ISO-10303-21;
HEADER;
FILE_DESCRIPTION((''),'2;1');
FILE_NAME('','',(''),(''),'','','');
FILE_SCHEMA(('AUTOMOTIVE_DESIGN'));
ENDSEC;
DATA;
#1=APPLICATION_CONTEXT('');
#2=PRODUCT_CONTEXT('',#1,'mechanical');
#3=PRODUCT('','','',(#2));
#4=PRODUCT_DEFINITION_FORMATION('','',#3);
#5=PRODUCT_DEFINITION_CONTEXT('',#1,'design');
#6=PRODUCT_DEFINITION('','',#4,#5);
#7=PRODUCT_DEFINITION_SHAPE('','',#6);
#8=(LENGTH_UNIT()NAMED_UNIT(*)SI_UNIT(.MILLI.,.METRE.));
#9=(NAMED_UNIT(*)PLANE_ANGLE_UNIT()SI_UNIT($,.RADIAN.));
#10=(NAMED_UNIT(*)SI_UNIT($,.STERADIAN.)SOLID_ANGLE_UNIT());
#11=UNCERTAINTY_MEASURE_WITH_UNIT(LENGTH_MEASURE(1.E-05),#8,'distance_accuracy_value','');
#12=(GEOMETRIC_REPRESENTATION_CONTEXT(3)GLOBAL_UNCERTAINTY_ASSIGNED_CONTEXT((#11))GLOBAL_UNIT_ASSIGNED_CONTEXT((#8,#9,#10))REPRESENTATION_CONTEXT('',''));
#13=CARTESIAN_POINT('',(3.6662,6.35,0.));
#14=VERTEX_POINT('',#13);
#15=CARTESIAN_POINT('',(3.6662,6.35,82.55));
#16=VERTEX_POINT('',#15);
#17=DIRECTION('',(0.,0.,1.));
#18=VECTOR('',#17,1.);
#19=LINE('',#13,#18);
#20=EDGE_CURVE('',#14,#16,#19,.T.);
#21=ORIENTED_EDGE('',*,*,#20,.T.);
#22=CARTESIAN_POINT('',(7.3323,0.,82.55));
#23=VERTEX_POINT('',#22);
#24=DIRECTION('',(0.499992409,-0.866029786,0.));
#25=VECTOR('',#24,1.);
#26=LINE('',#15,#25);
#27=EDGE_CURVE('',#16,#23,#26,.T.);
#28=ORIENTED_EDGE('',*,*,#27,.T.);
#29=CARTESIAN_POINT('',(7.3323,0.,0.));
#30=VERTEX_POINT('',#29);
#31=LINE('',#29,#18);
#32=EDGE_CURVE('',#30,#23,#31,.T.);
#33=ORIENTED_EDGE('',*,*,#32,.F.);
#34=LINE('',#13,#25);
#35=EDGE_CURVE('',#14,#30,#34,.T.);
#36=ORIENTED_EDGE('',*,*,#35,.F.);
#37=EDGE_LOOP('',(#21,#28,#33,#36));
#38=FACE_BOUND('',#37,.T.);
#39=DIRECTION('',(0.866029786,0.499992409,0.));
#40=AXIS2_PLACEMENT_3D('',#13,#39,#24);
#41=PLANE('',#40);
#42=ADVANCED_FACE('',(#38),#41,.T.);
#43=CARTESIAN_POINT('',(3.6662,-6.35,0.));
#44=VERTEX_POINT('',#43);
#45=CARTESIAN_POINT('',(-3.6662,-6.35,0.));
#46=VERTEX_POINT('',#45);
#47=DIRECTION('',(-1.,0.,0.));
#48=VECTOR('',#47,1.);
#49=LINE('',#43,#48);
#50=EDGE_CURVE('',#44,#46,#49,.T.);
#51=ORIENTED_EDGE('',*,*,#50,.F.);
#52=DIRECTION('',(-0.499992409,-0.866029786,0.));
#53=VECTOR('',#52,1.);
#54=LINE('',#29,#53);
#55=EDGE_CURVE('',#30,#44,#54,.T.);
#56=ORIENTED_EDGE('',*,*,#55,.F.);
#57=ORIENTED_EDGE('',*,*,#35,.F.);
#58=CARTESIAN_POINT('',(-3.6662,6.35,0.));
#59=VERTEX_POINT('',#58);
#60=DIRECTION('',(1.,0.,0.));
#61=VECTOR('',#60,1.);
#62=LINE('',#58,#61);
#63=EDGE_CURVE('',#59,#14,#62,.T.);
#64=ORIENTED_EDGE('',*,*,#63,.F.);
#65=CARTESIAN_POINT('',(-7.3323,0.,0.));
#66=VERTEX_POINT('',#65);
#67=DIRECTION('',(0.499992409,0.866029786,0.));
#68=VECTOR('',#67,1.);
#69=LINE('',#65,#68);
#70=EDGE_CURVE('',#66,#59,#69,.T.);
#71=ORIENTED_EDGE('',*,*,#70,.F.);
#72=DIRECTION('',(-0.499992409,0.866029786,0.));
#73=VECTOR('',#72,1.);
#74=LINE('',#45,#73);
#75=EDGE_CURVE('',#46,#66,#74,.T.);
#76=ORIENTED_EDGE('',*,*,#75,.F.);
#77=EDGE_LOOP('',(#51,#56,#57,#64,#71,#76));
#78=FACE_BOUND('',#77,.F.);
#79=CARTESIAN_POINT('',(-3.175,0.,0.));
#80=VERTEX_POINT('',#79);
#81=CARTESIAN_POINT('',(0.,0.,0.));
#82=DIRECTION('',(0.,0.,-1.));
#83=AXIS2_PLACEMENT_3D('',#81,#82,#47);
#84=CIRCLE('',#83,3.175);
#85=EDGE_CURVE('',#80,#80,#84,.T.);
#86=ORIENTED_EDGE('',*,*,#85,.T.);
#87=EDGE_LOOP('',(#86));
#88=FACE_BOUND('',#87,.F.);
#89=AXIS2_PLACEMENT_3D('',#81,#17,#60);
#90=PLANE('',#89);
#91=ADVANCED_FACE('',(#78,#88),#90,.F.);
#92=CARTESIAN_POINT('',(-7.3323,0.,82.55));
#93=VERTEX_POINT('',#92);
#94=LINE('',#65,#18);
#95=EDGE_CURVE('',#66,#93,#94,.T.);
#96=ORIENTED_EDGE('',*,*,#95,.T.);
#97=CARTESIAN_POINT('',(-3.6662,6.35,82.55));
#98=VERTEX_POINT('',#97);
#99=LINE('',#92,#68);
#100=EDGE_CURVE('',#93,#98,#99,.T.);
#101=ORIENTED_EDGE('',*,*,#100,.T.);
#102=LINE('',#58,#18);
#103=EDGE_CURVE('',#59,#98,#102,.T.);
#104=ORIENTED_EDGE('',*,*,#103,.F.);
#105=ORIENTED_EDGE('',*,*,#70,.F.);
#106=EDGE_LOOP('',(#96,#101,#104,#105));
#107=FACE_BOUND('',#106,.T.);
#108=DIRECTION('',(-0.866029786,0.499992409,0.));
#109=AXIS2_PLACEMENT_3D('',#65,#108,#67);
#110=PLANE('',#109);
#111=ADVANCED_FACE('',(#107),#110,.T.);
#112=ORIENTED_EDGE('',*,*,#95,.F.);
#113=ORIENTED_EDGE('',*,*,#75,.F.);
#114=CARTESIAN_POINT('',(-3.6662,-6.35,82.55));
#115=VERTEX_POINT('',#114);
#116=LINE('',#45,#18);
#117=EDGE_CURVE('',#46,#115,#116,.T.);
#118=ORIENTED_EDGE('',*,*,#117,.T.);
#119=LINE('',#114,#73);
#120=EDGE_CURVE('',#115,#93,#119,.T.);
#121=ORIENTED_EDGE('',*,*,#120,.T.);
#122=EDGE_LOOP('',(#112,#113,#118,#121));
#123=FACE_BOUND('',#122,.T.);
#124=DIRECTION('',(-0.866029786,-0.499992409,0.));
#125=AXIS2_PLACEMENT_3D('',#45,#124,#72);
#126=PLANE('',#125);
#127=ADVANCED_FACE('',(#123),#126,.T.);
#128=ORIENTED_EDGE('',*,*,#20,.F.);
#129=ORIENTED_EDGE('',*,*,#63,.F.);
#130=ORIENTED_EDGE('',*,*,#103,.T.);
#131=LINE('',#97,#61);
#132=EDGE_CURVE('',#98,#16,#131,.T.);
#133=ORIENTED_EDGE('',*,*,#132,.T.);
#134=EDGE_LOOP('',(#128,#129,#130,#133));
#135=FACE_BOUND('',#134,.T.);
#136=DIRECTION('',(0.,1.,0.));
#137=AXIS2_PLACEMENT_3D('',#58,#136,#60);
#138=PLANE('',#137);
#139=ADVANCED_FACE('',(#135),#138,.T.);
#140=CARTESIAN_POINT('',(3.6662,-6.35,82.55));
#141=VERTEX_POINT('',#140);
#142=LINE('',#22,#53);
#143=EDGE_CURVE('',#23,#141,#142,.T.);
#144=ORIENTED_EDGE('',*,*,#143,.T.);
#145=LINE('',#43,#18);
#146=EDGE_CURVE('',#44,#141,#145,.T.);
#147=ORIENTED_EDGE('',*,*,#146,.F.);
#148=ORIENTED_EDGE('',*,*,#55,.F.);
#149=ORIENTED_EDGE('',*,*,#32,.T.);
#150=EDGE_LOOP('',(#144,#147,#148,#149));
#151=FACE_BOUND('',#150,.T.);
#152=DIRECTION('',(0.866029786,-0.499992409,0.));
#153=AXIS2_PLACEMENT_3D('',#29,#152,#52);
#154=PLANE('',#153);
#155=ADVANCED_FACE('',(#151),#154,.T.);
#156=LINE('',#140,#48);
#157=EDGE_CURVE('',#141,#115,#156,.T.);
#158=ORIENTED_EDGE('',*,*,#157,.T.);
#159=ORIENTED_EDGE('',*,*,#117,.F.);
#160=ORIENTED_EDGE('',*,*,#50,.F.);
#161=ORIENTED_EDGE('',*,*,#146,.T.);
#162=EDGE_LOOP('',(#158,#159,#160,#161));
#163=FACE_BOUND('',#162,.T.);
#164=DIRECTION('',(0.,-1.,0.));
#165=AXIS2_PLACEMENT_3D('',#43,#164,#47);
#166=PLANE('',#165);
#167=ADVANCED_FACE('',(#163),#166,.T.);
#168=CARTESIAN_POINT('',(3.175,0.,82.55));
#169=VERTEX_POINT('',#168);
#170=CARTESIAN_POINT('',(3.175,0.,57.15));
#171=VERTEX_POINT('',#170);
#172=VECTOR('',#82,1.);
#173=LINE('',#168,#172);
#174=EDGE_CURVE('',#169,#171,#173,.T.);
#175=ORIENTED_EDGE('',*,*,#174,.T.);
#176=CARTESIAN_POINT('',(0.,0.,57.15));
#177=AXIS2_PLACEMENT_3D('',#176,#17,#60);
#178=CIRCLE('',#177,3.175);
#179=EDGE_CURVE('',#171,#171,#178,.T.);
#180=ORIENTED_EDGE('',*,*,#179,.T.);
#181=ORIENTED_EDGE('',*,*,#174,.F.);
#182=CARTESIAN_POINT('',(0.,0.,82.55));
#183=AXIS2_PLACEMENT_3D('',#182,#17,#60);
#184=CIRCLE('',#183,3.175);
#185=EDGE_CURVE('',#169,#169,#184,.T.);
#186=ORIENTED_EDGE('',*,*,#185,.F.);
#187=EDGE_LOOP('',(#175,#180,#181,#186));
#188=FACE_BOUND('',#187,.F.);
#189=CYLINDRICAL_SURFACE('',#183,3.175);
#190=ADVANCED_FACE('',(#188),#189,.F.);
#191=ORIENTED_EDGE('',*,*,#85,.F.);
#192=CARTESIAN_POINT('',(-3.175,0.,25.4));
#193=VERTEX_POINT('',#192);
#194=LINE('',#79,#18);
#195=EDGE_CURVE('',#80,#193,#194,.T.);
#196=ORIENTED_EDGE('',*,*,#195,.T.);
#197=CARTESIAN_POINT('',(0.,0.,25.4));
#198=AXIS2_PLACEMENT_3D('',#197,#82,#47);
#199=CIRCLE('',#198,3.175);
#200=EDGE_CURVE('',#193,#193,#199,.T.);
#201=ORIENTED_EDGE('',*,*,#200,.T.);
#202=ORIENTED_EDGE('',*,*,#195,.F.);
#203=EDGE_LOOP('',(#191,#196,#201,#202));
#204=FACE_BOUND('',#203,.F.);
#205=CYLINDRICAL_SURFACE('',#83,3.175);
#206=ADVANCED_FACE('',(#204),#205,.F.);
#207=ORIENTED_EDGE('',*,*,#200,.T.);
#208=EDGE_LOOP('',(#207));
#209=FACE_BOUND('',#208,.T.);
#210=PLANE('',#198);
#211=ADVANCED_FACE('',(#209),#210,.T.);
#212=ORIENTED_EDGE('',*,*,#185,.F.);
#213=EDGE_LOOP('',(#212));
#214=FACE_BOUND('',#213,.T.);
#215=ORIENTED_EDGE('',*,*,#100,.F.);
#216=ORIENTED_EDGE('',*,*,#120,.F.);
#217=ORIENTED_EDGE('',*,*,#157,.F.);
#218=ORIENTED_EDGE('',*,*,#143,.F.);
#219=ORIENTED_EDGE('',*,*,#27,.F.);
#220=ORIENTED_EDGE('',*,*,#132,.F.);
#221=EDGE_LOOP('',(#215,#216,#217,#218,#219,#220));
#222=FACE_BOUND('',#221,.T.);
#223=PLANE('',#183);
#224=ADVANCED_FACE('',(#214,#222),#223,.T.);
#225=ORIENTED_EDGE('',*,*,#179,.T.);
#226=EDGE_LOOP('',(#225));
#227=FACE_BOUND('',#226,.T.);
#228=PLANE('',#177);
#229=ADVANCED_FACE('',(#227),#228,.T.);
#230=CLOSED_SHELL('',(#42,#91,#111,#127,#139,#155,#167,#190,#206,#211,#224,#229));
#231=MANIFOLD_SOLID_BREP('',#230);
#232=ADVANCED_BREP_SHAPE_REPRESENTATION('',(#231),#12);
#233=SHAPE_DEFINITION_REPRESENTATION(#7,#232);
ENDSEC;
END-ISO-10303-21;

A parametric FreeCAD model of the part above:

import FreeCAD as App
import Part
import Sketcher
from FreeCAD import Vector
Q = App.Units.Quantity


def add_polygon(sketch, points):
    """Adds a closed chain of lines whose ends are joined by coincident constraints."""
    first, n = sketch.GeometryCount, len(points)
    for a, b in zip(points, points[1:] + points[:1]):
        sketch.addGeometry(Part.LineSegment(App.Vector(*a, 0), App.Vector(*b, 0)), False)
    for i in range(n):
        sketch.addConstraint(Sketcher.Constraint("Coincident", first + i, 2, first + (i + 1) % n, 1))

doc = App.newDocument("Part")
body = doc.addObject("PartDesign::Body", "Body")

# Sketch on XY plane
sketch1 = doc.addObject("Sketcher::SketchObject", "Sketch")
body.addObject(sketch1)
sketch1.AttachmentSupport = (doc.XY_Plane, [""])
sketch1.MapMode = "FlatFace"
add_polygon(sketch1, [(7.3323, 0), (3.6662, 6.35), (-3.6662, 6.35), (-7.3323, 0), (-3.6662, -6.35), (3.6662, -6.35)])  # lines 0-5
sketch1.addConstraint([
    Sketcher.Constraint("Horizontal", 1),
    Sketcher.Constraint("Horizontal", 4),
    Sketcher.Constraint("Symmetric", 0, 2, 3, 2, -1, 1),
    Sketcher.Constraint("Symmetric", 2, 2, 5, 2, -1, 1),
    Sketcher.Constraint("PointOnObject", 2, 2, -1),
    Sketcher.Constraint("Parallel", 2, 5),
    Sketcher.Constraint("Vertical", 1, 2, 3, 2),
    Sketcher.Constraint("DistanceY", 3, 2, 1, 2, Q("0.5 in")),
    Sketcher.Constraint("Angle", 0, Q("119.9995 deg")),
    Sketcher.Constraint("DistanceX", 2, 2, 0, 2, Q("0.433 in")),
])
pad1 = doc.addObject("PartDesign::Pad", "Pad")
body.addObject(pad1)
pad1.Profile = sketch1
pad1.Length = Q("3.25 in")

# Sketch on XY plane
sketch2 = doc.addObject("Sketcher::SketchObject", "Sketch001")
body.addObject(sketch2)
sketch2.AttachmentSupport = (doc.XY_Plane, [""])
sketch2.MapMode = "FlatFace"
sketch2.AttachmentOffset = App.Placement(Vector(0, 0, 3.25 * 25.4), App.Rotation())
sketch2.addGeometry(Part.Circle(Vector(0, 0, 0), Vector(0, 0, 1), 3.175), False)
sketch2.addConstraint([
    Sketcher.Constraint("Coincident", 0, 3, -1, 1),
    Sketcher.Constraint("Diameter", 0, Q("0.25 in")),
])
pocket1 = doc.addObject("PartDesign::Pocket", "Pocket")
body.addObject(pocket1)
pocket1.Profile = sketch2
pocket1.Length = Q("1 in")

# Sketch on XY plane
sketch3 = doc.addObject("Sketcher::SketchObject", "Sketch002")
body.addObject(sketch3)
sketch3.AttachmentSupport = (doc.XY_Plane, [""])
sketch3.MapMode = "FlatFace"
sketch3.addGeometry(Part.Circle(Vector(0, 0, 0), Vector(0, 0, 1), 3.175), False)
sketch3.addConstraint([
    Sketcher.Constraint("Coincident", 0, 3, -1, 1),
    Sketcher.Constraint("Diameter", 0, Q("0.25 in")),
])
pocket2 = doc.addObject("PartDesign::Pocket", "Pocket001")
body.addObject(pocket2)
pocket2.Profile = sketch3
pocket2.Length = Q("1 in")
pocket2.Reversed = True

doc.recompute()
